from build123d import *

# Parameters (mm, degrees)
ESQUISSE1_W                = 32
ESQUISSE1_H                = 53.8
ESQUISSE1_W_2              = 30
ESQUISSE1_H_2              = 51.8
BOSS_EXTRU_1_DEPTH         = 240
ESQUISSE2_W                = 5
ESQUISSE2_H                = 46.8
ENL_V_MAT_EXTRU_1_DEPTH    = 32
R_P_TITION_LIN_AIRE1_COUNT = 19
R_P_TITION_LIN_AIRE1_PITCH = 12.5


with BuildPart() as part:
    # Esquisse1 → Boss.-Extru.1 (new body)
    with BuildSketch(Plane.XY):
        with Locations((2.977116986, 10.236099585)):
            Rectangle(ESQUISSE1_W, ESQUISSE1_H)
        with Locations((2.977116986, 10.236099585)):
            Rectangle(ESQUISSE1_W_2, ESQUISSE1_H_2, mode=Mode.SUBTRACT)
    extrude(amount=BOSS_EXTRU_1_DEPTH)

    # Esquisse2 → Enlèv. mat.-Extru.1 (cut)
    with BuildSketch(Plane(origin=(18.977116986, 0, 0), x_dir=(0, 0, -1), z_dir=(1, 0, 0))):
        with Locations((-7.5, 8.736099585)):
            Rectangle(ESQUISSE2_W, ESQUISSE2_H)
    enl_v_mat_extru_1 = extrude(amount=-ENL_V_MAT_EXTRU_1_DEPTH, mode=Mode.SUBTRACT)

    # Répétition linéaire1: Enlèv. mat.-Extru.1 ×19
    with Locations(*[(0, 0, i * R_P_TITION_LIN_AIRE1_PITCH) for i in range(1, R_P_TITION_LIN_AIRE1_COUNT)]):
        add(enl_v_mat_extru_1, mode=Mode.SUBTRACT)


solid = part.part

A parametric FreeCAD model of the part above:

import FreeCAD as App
import Part
import Sketcher
Q = App.Units.Quantity

doc = App.newDocument("Part")
params = doc.addObject("Spreadsheet::Sheet", "Params")
for row, (alias, value) in enumerate([
    ("sketch1_width", "32 mm"),
    ("sketch1_width2", "30 mm"),
    ("sketch1_height", "53.8 mm"),
    ("sketch1_height2", "51.8 mm"),
    ("pad1_length", "240 mm"),
    ("sketch2_height", "5 mm"),
    ("sketch2_width", "46.8 mm"),
    ("pocket1_length", "32 mm"),
    ("linearpattern_pitch", "12.5 mm"),
], start=1):
    params.set(f"A{row}", alias)
    params.set(f"B{row}", "=" + value)
    params.setAlias(f"B{row}", alias)

body = doc.addObject("PartDesign::Body", "Body")

sketch1 = body.newObject("Sketcher::SketchObject", "Sketch")
sketch1.AttachmentSupport = (doc.getObject("XY_Plane"), [""])
sketch1.MapMode = "FlatFace"
sketch1.addGeometry([
    Part.LineSegment(App.Vector(-13, 37, 0), App.Vector(-13, -17, 0)),
    Part.LineSegment(App.Vector(-13, -17, 0), App.Vector(19, -17, 0)),
    Part.LineSegment(App.Vector(19, -17, 0), App.Vector(19, 37, 0)),
    Part.LineSegment(App.Vector(19, 37, 0), App.Vector(-13, 37, 0)),
    Part.LineSegment(App.Vector(18, -16, 0), App.Vector(-12, -16, 0)),
    Part.LineSegment(App.Vector(-12, -16, 0), App.Vector(-12, 36, 0)),
    Part.LineSegment(App.Vector(-12, 36, 0), App.Vector(18, 36, 0)),
    Part.LineSegment(App.Vector(18, 36, 0), App.Vector(18, -16, 0)),
], False)
sketch1.addConstraint([
    Sketcher.Constraint("Coincident", 0, 2, 1, 1),
    Sketcher.Constraint("Coincident", 1, 2, 2, 1),
    Sketcher.Constraint("Coincident", 2, 2, 3, 1),
    Sketcher.Constraint("Coincident", 3, 2, 0, 1),
    Sketcher.Constraint("Coincident", 4, 2, 5, 1),
    Sketcher.Constraint("Coincident", 5, 2, 6, 1),
    Sketcher.Constraint("Coincident", 6, 2, 7, 1),
    Sketcher.Constraint("Coincident", 7, 2, 4, 1),
    Sketcher.Constraint("Vertical", 0),
    Sketcher.Constraint("Horizontal", 1),
    Sketcher.Constraint("Vertical", 2),
    Sketcher.Constraint("Horizontal", 3),
    Sketcher.Constraint("Horizontal", 4),
    Sketcher.Constraint("Vertical", 5),
    Sketcher.Constraint("Horizontal", 6),
    Sketcher.Constraint("Vertical", 7),
    Sketcher.Constraint("DistanceX", 1, 1, 1, 2, Q("32 mm")),
    Sketcher.Constraint("DistanceX", 4, 2, 4, 1, Q("30 mm")),
    Sketcher.Constraint("DistanceY", 0, 2, 0, 1, Q("53.8 mm")),
    Sketcher.Constraint("DistanceY", 5, 1, 5, 2, Q("51.8 mm")),
    Sketcher.Constraint("DistanceX", 0, 2, 4, 2, Q("1 mm")),
    Sketcher.Constraint("DistanceY", 0, 2, 4, 2, Q("1 mm")),
    Sketcher.Constraint("DistanceY", 0, 2, -1, 1, Q("16.6639 mm")),
    Sketcher.Constraint("DistanceX", 0, 2, -1, 1, Q("13.022883 mm")),
])
sketch1.setExpression("Constraints[16]", "Params.sketch1_width")
sketch1.setExpression("Constraints[17]", "Params.sketch1_width2")
sketch1.setExpression("Constraints[18]", "Params.sketch1_height")
sketch1.setExpression("Constraints[19]", "Params.sketch1_height2")
pad1 = body.newObject("PartDesign::Pad", "Pad")
pad1.Profile = sketch1
pad1.setExpression("Length", "Params.pad1_length")

sketch2 = body.newObject("Sketcher::SketchObject", "Sketch001")
sketch2.AttachmentSupport = (doc.getObject("YZ_Plane"), [""])
sketch2.MapMode = "FlatFace"
sketch2.AttachmentOffset = App.Placement(App.Vector(0, 0, 18.977117), App.Rotation())
sketch2.addGeometry([
    Part.LineSegment(App.Vector(32, 10, 0), App.Vector(-15, 10, 0)),
    Part.LineSegment(App.Vector(-15, 10, 0), App.Vector(-15, 5, 0)),
    Part.LineSegment(App.Vector(-15, 5, 0), App.Vector(32, 5, 0)),
    Part.LineSegment(App.Vector(32, 5, 0), App.Vector(32, 10, 0)),
], False)
sketch2.addConstraint([
    Sketcher.Constraint("Coincident", 0, 2, 1, 1),
    Sketcher.Constraint("Coincident", 1, 2, 2, 1),
    Sketcher.Constraint("Coincident", 2, 2, 3, 1),
    Sketcher.Constraint("Coincident", 3, 2, 0, 1),
    Sketcher.Constraint("Horizontal", 0),
    Sketcher.Constraint("Vertical", 1),
    Sketcher.Constraint("Horizontal", 2),
    Sketcher.Constraint("Vertical", 3),
    Sketcher.Constraint("DistanceY", 1, 2, 1, 1, Q("5 mm")),
    Sketcher.Constraint("DistanceX", 0, 2, 0, 1, Q("46.8 mm")),
    Sketcher.Constraint("DistanceY", -1, 1, 0, 2, Q("10 mm")),
    Sketcher.Constraint("DistanceX", 0, 2, -1, 1, Q("14.6639 mm")),
])
sketch2.setExpression("Constraints[8]", "Params.sketch2_height")
sketch2.setExpression("Constraints[9]", "Params.sketch2_width")
pocket1 = body.newObject("PartDesign::Pocket", "Pocket")
pocket1.Profile = sketch2
pocket1.setExpression("Length", "Params.pocket1_length")
doc.recompute()

linearpattern = body.newObject("PartDesign::LinearPattern", "LinearPattern")
linearpattern.Originals = [pocket1]
linearpattern.Direction = (doc.getObject("Z_Axis"), [""])
linearpattern.Mode = "offset"
linearpattern.setExpression("Offset", "Params.linearpattern_pitch")
linearpattern.Occurrences = 19
body.Tip = linearpattern

doc.recompute()
